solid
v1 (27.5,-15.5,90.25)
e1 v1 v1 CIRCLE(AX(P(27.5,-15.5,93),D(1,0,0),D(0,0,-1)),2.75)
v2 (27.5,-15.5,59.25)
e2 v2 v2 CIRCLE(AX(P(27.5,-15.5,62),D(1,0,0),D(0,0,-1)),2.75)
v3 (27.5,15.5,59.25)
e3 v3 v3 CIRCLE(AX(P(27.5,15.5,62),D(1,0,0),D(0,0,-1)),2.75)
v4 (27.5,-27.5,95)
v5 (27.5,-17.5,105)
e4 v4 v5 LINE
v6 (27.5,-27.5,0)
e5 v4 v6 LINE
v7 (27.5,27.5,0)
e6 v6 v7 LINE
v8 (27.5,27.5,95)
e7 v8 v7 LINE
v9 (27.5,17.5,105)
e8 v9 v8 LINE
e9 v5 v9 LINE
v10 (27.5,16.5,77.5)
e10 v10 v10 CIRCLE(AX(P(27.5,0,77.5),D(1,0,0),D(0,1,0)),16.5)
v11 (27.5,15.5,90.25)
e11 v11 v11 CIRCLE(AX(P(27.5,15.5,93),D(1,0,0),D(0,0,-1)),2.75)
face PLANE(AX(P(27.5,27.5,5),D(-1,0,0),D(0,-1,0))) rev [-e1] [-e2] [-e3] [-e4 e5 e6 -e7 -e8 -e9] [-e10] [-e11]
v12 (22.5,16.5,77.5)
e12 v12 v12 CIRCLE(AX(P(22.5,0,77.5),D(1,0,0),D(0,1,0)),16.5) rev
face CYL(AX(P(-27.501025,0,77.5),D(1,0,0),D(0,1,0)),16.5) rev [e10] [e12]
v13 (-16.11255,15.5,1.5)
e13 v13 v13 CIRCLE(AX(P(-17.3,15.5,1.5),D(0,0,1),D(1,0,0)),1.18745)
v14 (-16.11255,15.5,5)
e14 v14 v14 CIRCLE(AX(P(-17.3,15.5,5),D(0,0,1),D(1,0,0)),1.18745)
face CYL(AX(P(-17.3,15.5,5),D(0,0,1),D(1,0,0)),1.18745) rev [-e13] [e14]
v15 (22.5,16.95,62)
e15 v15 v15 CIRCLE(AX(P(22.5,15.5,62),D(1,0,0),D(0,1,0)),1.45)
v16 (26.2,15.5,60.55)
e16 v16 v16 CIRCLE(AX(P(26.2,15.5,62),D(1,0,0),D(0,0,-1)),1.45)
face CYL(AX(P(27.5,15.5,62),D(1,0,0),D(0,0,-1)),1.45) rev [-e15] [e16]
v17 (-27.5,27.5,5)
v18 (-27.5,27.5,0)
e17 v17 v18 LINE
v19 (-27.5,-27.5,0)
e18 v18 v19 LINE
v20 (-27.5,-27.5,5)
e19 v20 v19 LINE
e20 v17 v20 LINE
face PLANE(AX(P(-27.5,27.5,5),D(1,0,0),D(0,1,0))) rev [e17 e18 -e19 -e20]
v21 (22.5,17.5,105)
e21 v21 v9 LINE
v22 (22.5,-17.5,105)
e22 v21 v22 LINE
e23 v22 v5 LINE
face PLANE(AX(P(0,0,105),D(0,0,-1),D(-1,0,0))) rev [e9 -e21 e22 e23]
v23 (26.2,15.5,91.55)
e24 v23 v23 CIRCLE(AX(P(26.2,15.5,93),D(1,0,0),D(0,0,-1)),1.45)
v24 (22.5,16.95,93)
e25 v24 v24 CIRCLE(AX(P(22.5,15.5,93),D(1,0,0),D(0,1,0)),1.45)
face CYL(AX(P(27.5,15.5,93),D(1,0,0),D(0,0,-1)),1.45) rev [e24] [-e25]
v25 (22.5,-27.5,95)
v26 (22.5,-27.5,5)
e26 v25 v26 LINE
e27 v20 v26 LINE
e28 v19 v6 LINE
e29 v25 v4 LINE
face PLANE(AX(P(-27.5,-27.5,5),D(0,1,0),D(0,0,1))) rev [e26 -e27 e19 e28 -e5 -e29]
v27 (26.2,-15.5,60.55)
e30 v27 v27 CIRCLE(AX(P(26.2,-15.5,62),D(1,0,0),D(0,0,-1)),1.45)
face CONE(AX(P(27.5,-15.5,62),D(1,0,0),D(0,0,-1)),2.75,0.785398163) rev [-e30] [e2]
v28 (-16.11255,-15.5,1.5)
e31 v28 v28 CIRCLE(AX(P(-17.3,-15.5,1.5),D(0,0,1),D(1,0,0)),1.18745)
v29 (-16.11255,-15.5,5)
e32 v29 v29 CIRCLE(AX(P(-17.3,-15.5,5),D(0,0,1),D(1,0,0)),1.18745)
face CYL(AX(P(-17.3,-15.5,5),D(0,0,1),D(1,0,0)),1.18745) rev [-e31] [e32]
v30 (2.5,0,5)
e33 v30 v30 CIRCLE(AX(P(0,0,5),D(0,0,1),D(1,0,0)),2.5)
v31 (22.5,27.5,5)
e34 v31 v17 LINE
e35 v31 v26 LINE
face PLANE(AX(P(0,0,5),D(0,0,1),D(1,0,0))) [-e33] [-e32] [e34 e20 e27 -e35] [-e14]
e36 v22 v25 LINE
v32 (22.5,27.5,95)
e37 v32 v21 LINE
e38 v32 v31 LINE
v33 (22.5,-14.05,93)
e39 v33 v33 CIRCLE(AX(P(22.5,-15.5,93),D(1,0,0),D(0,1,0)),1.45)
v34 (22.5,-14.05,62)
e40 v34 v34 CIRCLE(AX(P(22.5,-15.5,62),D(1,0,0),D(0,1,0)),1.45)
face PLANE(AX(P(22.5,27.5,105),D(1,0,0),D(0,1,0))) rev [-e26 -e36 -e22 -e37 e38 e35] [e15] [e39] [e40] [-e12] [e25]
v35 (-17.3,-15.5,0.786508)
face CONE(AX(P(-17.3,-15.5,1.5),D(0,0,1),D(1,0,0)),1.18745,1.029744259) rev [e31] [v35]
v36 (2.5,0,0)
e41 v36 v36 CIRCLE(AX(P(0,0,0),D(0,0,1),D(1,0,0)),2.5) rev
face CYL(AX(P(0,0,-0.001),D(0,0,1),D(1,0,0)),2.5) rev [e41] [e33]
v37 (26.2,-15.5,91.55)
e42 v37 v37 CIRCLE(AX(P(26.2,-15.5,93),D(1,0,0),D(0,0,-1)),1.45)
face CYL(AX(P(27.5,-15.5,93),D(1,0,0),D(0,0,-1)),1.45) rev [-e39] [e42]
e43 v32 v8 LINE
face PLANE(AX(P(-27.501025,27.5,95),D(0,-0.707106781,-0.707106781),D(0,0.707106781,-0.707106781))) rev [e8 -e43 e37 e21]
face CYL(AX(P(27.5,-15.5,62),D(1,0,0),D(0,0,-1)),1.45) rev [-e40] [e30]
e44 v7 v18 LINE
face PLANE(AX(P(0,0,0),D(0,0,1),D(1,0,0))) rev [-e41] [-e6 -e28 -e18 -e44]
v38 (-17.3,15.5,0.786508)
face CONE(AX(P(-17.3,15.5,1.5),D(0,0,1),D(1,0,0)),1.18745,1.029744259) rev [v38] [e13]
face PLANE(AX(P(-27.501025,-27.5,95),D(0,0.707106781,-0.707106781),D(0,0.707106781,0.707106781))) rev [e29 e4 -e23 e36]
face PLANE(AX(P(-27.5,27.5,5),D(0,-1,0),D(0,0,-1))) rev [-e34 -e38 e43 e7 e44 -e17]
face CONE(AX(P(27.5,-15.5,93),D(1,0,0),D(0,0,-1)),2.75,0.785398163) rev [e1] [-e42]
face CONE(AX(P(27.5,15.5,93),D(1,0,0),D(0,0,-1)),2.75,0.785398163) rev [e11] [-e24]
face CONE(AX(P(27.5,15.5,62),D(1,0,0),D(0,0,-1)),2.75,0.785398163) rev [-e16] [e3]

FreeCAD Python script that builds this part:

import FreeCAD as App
import Part
import Sketcher
from FreeCAD import Vector
Q = App.Units.Quantity

doc = App.newDocument("Part")
body = doc.addObject("PartDesign::Body", "Body")

sketch1 = body.newObject("Sketcher::SketchObject", "Sketch")
sketch1.AttachmentSupport = (doc.getObject("XY_Plane"), [""])
sketch1.MapMode = "FlatFace"
sketch1.addGeometry(Part.LineSegment(Vector(-28, 28, 0), Vector(-28, -28, 0)), False)
sketch1.addGeometry(Part.LineSegment(Vector(-28, -28, 0), Vector(28, -28, 0)), False)
sketch1.addGeometry(Part.LineSegment(Vector(28, -28, 0), Vector(28, 28, 0)), False)
sketch1.addGeometry(Part.LineSegment(Vector(28, 28, 0), Vector(-28, 28, 0)), False)
sketch1.addConstraint(Sketcher.Constraint("Coincident", 0, 2, 1, 1))
sketch1.addConstraint(Sketcher.Constraint("Coincident", 1, 2, 2, 1))
sketch1.addConstraint(Sketcher.Constraint("Coincident", 2, 2, 3, 1))
sketch1.addConstraint(Sketcher.Constraint("Coincident", 3, 2, 0, 1))
sketch1.addConstraint(Sketcher.Constraint("Vertical", 0))
sketch1.addConstraint(Sketcher.Constraint("Horizontal", 1))
sketch1.addConstraint(Sketcher.Constraint("Vertical", 2))
sketch1.addConstraint(Sketcher.Constraint("Horizontal", 3))
sketch1.addConstraint(Sketcher.Constraint("Symmetric", 0, 2, 2, 2, -1, 1))
sketch1.addConstraint(Sketcher.Constraint("Equal", 3, 0))
sketch1.addConstraint(Sketcher.Constraint("DistanceX", 1, 1, 1, 2, Q("55 mm")))
pad1 = body.newObject("PartDesign::Pad", "Pad")
pad1.Profile = sketch1
pad1.Length = 5

sketch2 = body.newObject("Sketcher::SketchObject", "Sketch001")
sketch2.AttachmentSupport = (doc.getObject("XY_Plane"), [""])
sketch2.MapMode = "FlatFace"
sketch2.AttachmentOffset = App.Placement(Vector(0, 0, 5), App.Rotation())
sketch2.addGeometry(Part.LineSegment(Vector(22, 28, 0), Vector(22, -28, 0)), False)
sketch2.addGeometry(Part.LineSegment(Vector(22, -28, 0), Vector(28, -28, 0)), False)
sketch2.addGeometry(Part.LineSegment(Vector(28, -28, 0), Vector(28, 28, 0)), False)
sketch2.addGeometry(Part.LineSegment(Vector(28, 28, 0), Vector(22, 28, 0)), False)
sketch2.addConstraint(Sketcher.Constraint("Coincident", 0, 2, 1, 1))
sketch2.addConstraint(Sketcher.Constraint("Coincident", 1, 2, 2, 1))
sketch2.addConstraint(Sketcher.Constraint("Coincident", 2, 2, 3, 1))
sketch2.addConstraint(Sketcher.Constraint("Coincident", 3, 2, 0, 1))
sketch2.addConstraint(Sketcher.Constraint("Vertical", 0))
sketch2.addConstraint(Sketcher.Constraint("Horizontal", 1))
sketch2.addConstraint(Sketcher.Constraint("Vertical", 2))
sketch2.addConstraint(Sketcher.Constraint("Horizontal", 3))
sketch2.addConstraint(Sketcher.Constraint("DistanceX", 1, 1, 1, 2, Q("5 mm")))
sketch2.addConstraint(Sketcher.Constraint("DistanceY", 0, 2, 0, 1, Q("55 mm")))
sketch2.addConstraint(Sketcher.Constraint("DistanceX", -1, 1, 0, 2, Q("22.5 mm")))
sketch2.addConstraint(Sketcher.Constraint("DistanceY", 0, 2, -1, 1, Q("27.5 mm")))
pad2 = body.newObject("PartDesign::Pad", "Pad001")
pad2.Profile = sketch2
pad2.Length = 100

sketch3 = body.newObject("Sketcher::SketchObject", "Sketch002")
sketch3.AttachmentSupport = (doc.getObject("YZ_Plane"), [""])
sketch3.MapMode = "FlatFace"
sketch3.AttachmentOffset = App.Placement(Vector(0, 0, 27.5), App.Rotation())
sketch3.addGeometry(Part.Circle(Vector(0, 78, 0), Vector(0, 0, 1), 16), False)
sketch3.addConstraint(Sketcher.Constraint("PointOnObject", 0, 3, -2))
sketch3.addConstraint(Sketcher.Constraint("Diameter", 0, Q("33 mm")))
sketch3.addConstraint(Sketcher.Constraint("DistanceY", -1, 1, 0, 3, Q("77.5 mm")))
pocket1 = body.newObject("PartDesign::Pocket", "Pocket")
pocket1.Profile = sketch3
pocket1.Type = "UpToFirst"

sketch4 = body.newObject("Sketcher::SketchObject", "Sketch003")
sketch4.AttachmentSupport = (doc.getObject("XY_Plane"), [""])
sketch4.MapMode = "FlatFace"
sketch4.AttachmentOffset = App.Placement(Vector(0, 0, 5), App.Rotation())
sketch4.addGeometry(Part.Circle(Vector(0, 0, 0), Vector(0, 0, 1), 2.5), False)
sketch4.addConstraint(Sketcher.Constraint("Coincident", 0, 3, -1, 1))
sketch4.addConstraint(Sketcher.Constraint("Diameter", 0, Q("5 mm")))
pocket2 = body.newObject("PartDesign::Pocket", "Pocket001")
pocket2.Profile = sketch4
pocket2.Type = "UpToFirst"

sketch5 = body.newObject("Sketcher::SketchObject", "Sketch004")
sketch5.AttachmentSupport = (doc.getObject("YZ_Plane"), [""])
sketch5.MapMode = "FlatFace"
sketch5.AttachmentOffset = App.Placement(Vector(0, 0, 27.5), App.Rotation())
sketch5.addGeometry(Part.LineSegment(Vector(28, 95, 0), Vector(28, 105, 0)), False)
sketch5.addGeometry(Part.LineSegment(Vector(28, 105, 0), Vector(18, 105, 0)), False)
sketch5.addGeometry(Part.LineSegment(Vector(18, 105, 0), Vector(28, 95, 0)), False)
sketch5.addConstraint(Sketcher.Constraint("Coincident", 0, 2, 1, 1))
sketch5.addConstraint(Sketcher.Constraint("Coincident", 1, 2, 2, 1))
sketch5.addConstraint(Sketcher.Constraint("Coincident", 2, 2, 0, 1))
sketch5.addConstraint(Sketcher.Constraint("Vertical", 0))
sketch5.addConstraint(Sketcher.Constraint("Horizontal", 1))
sketch5.addConstraint(Sketcher.Constraint("Equal", 1, 0))
sketch5.addConstraint(Sketcher.Constraint("DistanceX", 1, 2, 1, 1, Q("10 mm")))
sketch5.addConstraint(Sketcher.Constraint("DistanceY", -1, 1, 0, 2, Q("105 mm")))
sketch5.addConstraint(Sketcher.Constraint("DistanceX", -1, 1, 0, 2, Q("27.5 mm")))
pocket3 = body.newObject("PartDesign::Pocket", "Pocket002")
pocket3.Profile = sketch5
pocket3.Type = "UpToFirst"

sketch6 = body.newObject("Sketcher::SketchObject", "Sketch005")
sketch6.AttachmentSupport = (doc.getObject("YZ_Plane"), [""])
sketch6.MapMode = "FlatFace"
sketch6.AttachmentOffset = App.Placement(Vector(0, 0, 27.5), App.Rotation())
sketch6.addGeometry(Part.LineSegment(Vector(-28, 105, 0), Vector(-28, 95, 0)), False)
sketch6.addGeometry(Part.LineSegment(Vector(-28, 95, 0), Vector(-18, 105, 0)), False)
sketch6.addGeometry(Part.LineSegment(Vector(-18, 105, 0), Vector(-28, 105, 0)), False)
sketch6.addConstraint(Sketcher.Constraint("Coincident", 0, 2, 1, 1))
sketch6.addConstraint(Sketcher.Constraint("Coincident", 1, 2, 2, 1))
sketch6.addConstraint(Sketcher.Constraint("Coincident", 2, 2, 0, 1))
sketch6.addConstraint(Sketcher.Constraint("Vertical", 0))
sketch6.addConstraint(Sketcher.Constraint("Horizontal", 2))
sketch6.addConstraint(Sketcher.Constraint("Equal", 2, 0))
sketch6.addConstraint(Sketcher.Constraint("DistanceX", 2, 2, 2, 1, Q("10 mm")))
sketch6.addConstraint(Sketcher.Constraint("DistanceY", -1, 1, 0, 2, Q("95 mm")))
sketch6.addConstraint(Sketcher.Constraint("DistanceX", 0, 2, -1, 1, Q("27.5 mm")))
pocket4 = body.newObject("PartDesign::Pocket", "Pocket003")
pocket4.Profile = sketch6
pocket4.Type = "UpToFirst"

sketch7 = body.newObject("Sketcher::SketchObject", "Sketch006")
sketch7.AttachmentSupport = (doc.getObject("XY_Plane"), [""])
sketch7.MapMode = "FlatFace"
sketch7.AttachmentOffset = App.Placement(Vector(0, 0, 5), App.Rotation())
sketch7.addGeometry(Part.Circle(Vector(-17.3, 15.5, 0), Vector(0, 0, 1), 1.2), False)
sketch7.addGeometry(Part.Circle(Vector(-17.3, -15.5, 0), Vector(0, 0, 1), 1.2), False)
sketch7.addConstraint(Sketcher.Constraint("Equal", 0, 1))
sketch7.addConstraint(Sketcher.Constraint("Symmetric", 0, 3, 1, 3, -1))
sketch7.addConstraint(Sketcher.Constraint("DistanceY", 1, 3, 0, 3, Q("31 mm")))
sketch7.addConstraint(Sketcher.Constraint("Diameter", 0, Q("2.3749 mm")))
sketch7.addConstraint(Sketcher.Constraint("DistanceX", 0, 3, -1, 1, Q("17.3 mm")))
doc.recompute()
hole = body.newObject("PartDesign::Hole", "Hole")
hole.Profile = sketch7
hole.ThreadType = "None"
hole.Diameter = 2.3749
hole.DepthType = "Dimension"
hole.Depth = 3.5
hole.DrillPoint = "Angled"
hole.DrillPointAngle = 118

sketch8 = body.newObject("Sketcher::SketchObject", "Sketch007")
sketch8.AttachmentSupport = (doc.getObject("YZ_Plane"), [""])
sketch8.MapMode = "FlatFace"
sketch8.AttachmentOffset = App.Placement(Vector(0, 0, 27.5), App.Rotation())
sketch8.addGeometry(Part.Circle(Vector(15.5, 93, 0), Vector(0, 0, 1), 1.4), False)
sketch8.addGeometry(Part.Circle(Vector(15.5, 62, 0), Vector(0, 0, 1), 1.4), False)
sketch8.addGeometry(Part.Circle(Vector(-15.5, 62, 0), Vector(0, 0, 1), 1.4), False)
sketch8.addGeometry(Part.Circle(Vector(-15.5, 93, 0), Vector(0, 0, 1), 1.4), False)
sketch8.addConstraint(Sketcher.Constraint("Equal", 0, 1))
sketch8.addConstraint(Sketcher.Constraint("Equal", 1, 2))
sketch8.addConstraint(Sketcher.Constraint("Equal", 2, 3))
sketch8.addConstraint(Sketcher.Constraint("Symmetric", 1, 3, 2, 3, -2))
sketch8.addConstraint(Sketcher.Constraint("Symmetric", 0, 3, 3, 3, -2))
sketch8.addConstraint(Sketcher.Constraint("Vertical", 0, 3, 1, 3))
sketch8.addConstraint(Sketcher.Constraint("Diameter", 0, Q("2.9 mm")))
sketch8.addConstraint(Sketcher.Constraint("DistanceY", -1, 1, 0, 3, Q("93 mm")))
sketch8.addConstraint(Sketcher.Constraint("DistanceY", -1, 1, 1, 3, Q("62 mm")))
sketch8.addConstraint(Sketcher.Constraint("DistanceX", 2, 3, 1, 3, Q("31 mm")))
doc.recompute()
hole2 = body.newObject("PartDesign::Hole", "Hole001")
hole2.Profile = sketch8
hole2.ThreadType = "None"
hole2.Diameter = 2.9
hole2.DepthType = "Dimension"
hole2.Depth = 5
hole2.DrillPoint = "Flat"
hole2.HoleCutType = "Countersink"
hole2.HoleCutDiameter = 5.5
hole2.HoleCutCountersinkAngle = 90

doc.recompute()
